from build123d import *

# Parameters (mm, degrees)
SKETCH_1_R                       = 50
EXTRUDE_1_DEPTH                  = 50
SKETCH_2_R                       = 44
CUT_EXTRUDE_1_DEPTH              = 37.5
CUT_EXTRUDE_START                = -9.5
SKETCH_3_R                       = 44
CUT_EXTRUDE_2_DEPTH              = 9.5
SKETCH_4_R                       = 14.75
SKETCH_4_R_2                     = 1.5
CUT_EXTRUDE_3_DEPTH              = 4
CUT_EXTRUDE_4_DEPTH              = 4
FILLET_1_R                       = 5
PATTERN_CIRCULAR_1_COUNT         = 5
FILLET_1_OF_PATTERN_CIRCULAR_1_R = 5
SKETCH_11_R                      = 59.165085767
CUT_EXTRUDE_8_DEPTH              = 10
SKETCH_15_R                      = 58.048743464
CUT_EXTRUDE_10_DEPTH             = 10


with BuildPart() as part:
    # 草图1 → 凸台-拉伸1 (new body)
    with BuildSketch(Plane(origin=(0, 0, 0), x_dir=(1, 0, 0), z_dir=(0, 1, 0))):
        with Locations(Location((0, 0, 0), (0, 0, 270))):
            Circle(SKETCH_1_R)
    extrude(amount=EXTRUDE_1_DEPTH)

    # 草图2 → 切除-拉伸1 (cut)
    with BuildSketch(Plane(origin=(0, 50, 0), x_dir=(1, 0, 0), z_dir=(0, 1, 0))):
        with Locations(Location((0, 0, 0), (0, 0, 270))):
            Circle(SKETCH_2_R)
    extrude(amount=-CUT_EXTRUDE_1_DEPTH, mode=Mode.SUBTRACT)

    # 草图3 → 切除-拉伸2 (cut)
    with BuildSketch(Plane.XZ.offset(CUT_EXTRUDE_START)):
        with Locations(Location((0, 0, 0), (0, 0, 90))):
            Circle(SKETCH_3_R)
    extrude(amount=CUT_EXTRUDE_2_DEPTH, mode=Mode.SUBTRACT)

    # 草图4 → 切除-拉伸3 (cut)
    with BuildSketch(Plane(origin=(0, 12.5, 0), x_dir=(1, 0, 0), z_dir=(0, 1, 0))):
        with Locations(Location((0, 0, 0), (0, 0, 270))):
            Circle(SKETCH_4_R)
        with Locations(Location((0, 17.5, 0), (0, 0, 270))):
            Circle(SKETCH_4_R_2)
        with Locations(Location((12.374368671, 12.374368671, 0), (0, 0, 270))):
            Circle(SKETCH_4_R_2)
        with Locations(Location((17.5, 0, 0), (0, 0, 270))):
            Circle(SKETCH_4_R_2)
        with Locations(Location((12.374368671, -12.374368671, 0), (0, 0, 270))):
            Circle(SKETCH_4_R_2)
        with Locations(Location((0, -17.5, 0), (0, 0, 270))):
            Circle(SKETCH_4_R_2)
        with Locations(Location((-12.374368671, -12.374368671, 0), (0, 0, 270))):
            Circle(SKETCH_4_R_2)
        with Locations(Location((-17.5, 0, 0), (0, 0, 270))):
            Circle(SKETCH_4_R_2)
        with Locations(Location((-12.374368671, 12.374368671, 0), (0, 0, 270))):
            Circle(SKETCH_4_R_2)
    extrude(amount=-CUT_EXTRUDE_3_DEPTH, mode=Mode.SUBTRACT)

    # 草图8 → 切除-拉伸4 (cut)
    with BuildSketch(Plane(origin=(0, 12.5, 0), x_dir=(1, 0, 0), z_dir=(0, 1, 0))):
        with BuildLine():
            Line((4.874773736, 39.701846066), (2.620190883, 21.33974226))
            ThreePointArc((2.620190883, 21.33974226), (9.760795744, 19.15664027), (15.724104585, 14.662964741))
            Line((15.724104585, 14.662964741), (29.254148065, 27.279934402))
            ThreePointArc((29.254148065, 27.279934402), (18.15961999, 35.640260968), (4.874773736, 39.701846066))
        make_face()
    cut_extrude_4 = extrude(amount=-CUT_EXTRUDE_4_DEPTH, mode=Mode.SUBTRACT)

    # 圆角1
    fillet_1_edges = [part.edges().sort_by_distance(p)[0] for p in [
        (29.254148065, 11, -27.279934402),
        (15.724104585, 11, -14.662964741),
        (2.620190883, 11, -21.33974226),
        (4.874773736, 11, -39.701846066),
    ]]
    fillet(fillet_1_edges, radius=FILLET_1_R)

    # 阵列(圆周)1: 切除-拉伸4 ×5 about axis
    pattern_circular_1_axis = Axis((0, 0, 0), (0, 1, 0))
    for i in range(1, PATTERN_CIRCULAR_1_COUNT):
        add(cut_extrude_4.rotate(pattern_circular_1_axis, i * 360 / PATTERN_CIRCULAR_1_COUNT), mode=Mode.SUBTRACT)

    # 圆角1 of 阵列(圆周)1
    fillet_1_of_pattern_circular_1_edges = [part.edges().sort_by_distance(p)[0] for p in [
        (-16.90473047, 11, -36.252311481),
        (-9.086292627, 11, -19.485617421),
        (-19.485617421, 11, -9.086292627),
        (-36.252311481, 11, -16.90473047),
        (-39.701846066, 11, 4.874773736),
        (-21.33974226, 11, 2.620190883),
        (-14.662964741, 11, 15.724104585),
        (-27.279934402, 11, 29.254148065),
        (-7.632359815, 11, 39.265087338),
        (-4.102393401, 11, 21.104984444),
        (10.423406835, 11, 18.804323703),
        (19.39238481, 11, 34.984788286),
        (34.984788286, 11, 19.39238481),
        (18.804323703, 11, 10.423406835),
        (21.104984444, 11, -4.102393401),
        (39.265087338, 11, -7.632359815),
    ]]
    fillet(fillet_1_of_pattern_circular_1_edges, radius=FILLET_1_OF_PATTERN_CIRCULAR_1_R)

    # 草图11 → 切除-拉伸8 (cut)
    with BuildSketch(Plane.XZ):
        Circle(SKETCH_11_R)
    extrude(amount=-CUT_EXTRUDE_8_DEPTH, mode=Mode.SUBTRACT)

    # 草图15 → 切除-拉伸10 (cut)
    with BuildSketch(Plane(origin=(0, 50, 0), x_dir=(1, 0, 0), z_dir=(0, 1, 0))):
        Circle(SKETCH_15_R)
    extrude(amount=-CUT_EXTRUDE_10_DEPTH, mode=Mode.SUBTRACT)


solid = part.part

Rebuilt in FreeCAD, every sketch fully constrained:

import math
import FreeCAD as App
import Part
import Sketcher
from FreeCAD import Vector
Q = App.Units.Quantity


def edges_at(feature, points):
    """Names of the edges that pass closest to the given points."""
    edges = feature.Shape.Edges
    near = lambda p: min(range(len(edges)), key=lambda i: edges[i].distToShape(Part.Vertex(*p))[0])
    return sorted({f"Edge{near(p) + 1}" for p in points})

doc = App.newDocument("Part")
body = doc.addObject("PartDesign::Body", "Body")

# Sketch on XZ plane
sketch1 = body.newObject("Sketcher::SketchObject", "Sketch")
sketch1.AttachmentSupport = (doc.getObject("XZ_Plane"), [""])
sketch1.MapMode = "FlatFace"
sketch1.addGeometry(Part.Circle(Vector(0, 0, 0), Vector(0, 0, 1), 50), False)
sketch1.addConstraint(Sketcher.Constraint("Coincident", 0, 3, -1, 1))
sketch1.addConstraint(Sketcher.Constraint("Diameter", 0, Q("100 mm")))
pad1 = body.newObject("PartDesign::Pad", "Pad")
pad1.Profile = sketch1
pad1.Length = 50
pad1.Reversed = True

# Sketch on XZ plane
sketch2 = body.newObject("Sketcher::SketchObject", "Sketch001")
sketch2.AttachmentSupport = (doc.getObject("XZ_Plane"), [""])
sketch2.MapMode = "FlatFace"
sketch2.AttachmentOffset = App.Placement(Vector(0, 0, -50), App.Rotation())
sketch2.addGeometry(Part.Circle(Vector(0, 0, 0), Vector(0, 0, 1), 44), False)
sketch2.addConstraint(Sketcher.Constraint("Coincident", 0, 3, -1, 1))
sketch2.addConstraint(Sketcher.Constraint("Diameter", 0, Q("88 mm")))
pocket1 = body.newObject("PartDesign::Pocket", "Pocket")
pocket1.Profile = sketch2
pocket1.Length = 37.5
pocket1.Reversed = True

# Sketch on XZ plane
sketch3 = body.newObject("Sketcher::SketchObject", "Sketch002")
sketch3.AttachmentSupport = (doc.getObject("XZ_Plane"), [""])
sketch3.MapMode = "FlatFace"
sketch3.AttachmentOffset = App.Placement(Vector(0, 0, -9.5), App.Rotation())
sketch3.addGeometry(Part.Circle(Vector(0, 0, 0), Vector(0, 0, 1), 44), False)
sketch3.addConstraint(Sketcher.Constraint("Coincident", 0, 3, -1, 1))
sketch3.addConstraint(Sketcher.Constraint("Diameter", 0, Q("88 mm")))
pocket2 = body.newObject("PartDesign::Pocket", "Pocket001")
pocket2.Profile = sketch3
pocket2.Length = 9.5
pocket2.Reversed = True

# Sketch on XZ plane
sketch4 = body.newObject("Sketcher::SketchObject", "Sketch003")
sketch4.AttachmentSupport = (doc.getObject("XZ_Plane"), [""])
sketch4.MapMode = "FlatFace"
sketch4.AttachmentOffset = App.Placement(Vector(0, 0, -12.5), App.Rotation())
sketch4.addGeometry(Part.Circle(Vector(0, 0, 0), Vector(0, 0, 1), 14.8), False)
sketch4.addGeometry(Part.Circle(Vector(0, -17.5, 0), Vector(0, 0, 1), 1.5), False)
sketch4.addGeometry(Part.Circle(Vector(12.4, -12.4, 0), Vector(0, 0, 1), 1.5), False)
sketch4.addGeometry(Part.Circle(Vector(17.5, 0, 0), Vector(0, 0, 1), 1.5), False)
sketch4.addGeometry(Part.Circle(Vector(12.4, 12.4, 0), Vector(0, 0, 1), 1.5), False)
sketch4.addGeometry(Part.Circle(Vector(0, 17.5, 0), Vector(0, 0, 1), 1.5), False)
sketch4.addGeometry(Part.Circle(Vector(-12.4, 12.4, 0), Vector(0, 0, 1), 1.5), False)
sketch4.addGeometry(Part.Circle(Vector(-17.5, 0, 0), Vector(0, 0, 1), 1.5), False)
sketch4.addGeometry(Part.Circle(Vector(-12.4, -12.4, 0), Vector(0, 0, 1), 1.5), False)
sketch4.addConstraint(Sketcher.Constraint("Coincident", 0, 3, -1, 1))
sketch4.addConstraint(Sketcher.Constraint("Equal", 1, 2))
sketch4.addConstraint(Sketcher.Constraint("Equal", 2, 3))
sketch4.addConstraint(Sketcher.Constraint("Equal", 3, 4))
sketch4.addConstraint(Sketcher.Constraint("Equal", 4, 5))
sketch4.addConstraint(Sketcher.Constraint("Equal", 5, 6))
sketch4.addConstraint(Sketcher.Constraint("Equal", 6, 7))
sketch4.addConstraint(Sketcher.Constraint("Equal", 7, 8))
sketch4.addConstraint(Sketcher.Constraint("Symmetric", 1, 3, 5, 3, -1, 1))
sketch4.addConstraint(Sketcher.Constraint("Symmetric", 2, 3, 6, 3, -1, 1))
sketch4.addConstraint(Sketcher.Constraint("Symmetric", 3, 3, 7, 3, -1, 1))
sketch4.addConstraint(Sketcher.Constraint("Symmetric", 4, 3, 8, 3, -1, 1))
sketch4.addConstraint(Sketcher.Constraint("Symmetric", 4, 3, 6, 3, -2))
sketch4.addConstraint(Sketcher.Constraint("PointOnObject", 1, 3, -2))
sketch4.addConstraint(Sketcher.Constraint("PointOnObject", 3, 3, -1))
sketch4.addConstraint(Sketcher.Constraint("Diameter", 1, Q("3 mm")))
sketch4.addConstraint(Sketcher.Constraint("Diameter", 0, Q("29.5 mm")))
sketch4.addConstraint(Sketcher.Constraint("DistanceY", 1, 3, 5, 3, Q("35 mm")))
sketch4.addConstraint(Sketcher.Constraint("DistanceX", -1, 1, 3, 3, Q("17.5 mm")))
sketch4.addConstraint(Sketcher.Constraint("DistanceX", -1, 1, 2, 3, Q("12.374369 mm")))
sketch4.addConstraint(Sketcher.Constraint("DistanceY", 2, 3, -1, 1, Q("12.374369 mm")))
pocket3 = body.newObject("PartDesign::Pocket", "Pocket002")
pocket3.Profile = sketch4
pocket3.Length = 4
pocket3.Reversed = True

# Sketch on XZ plane
sketch5 = body.newObject("Sketcher::SketchObject", "Sketch004")
sketch5.AttachmentSupport = (doc.getObject("XZ_Plane"), [""])
sketch5.MapMode = "FlatFace"
sketch5.AttachmentOffset = App.Placement(Vector(0, 0, -12.5), App.Rotation())
sketch5.addGeometry(Part.LineSegment(Vector(5, -40, 0), Vector(3, -21, 0)), False)
sketch5.addGeometry(Part.ArcOfCircle(Part.Circle(Vector(0, 0, 0), Vector(0, 0, 1), 22), math.radians(-83), math.radians(-43)), False)
sketch5.addGeometry(Part.LineSegment(Vector(16, -15, 0), Vector(29, -27, 0)), False)
sketch5.addGeometry(Part.ArcOfCircle(Part.Circle(Vector(0, 0, 0), Vector(0, 0, 1), 40), math.radians(-83), math.radians(-43)), False)
sketch5.addConstraint(Sketcher.Constraint("Coincident", 0, 2, 1, 1))
sketch5.addConstraint(Sketcher.Constraint("Coincident", 1, 2, 2, 1))
sketch5.addConstraint(Sketcher.Constraint("Coincident", 2, 2, 3, 2))
sketch5.addConstraint(Sketcher.Constraint("Coincident", 3, 1, 0, 1))
sketch5.addConstraint(Sketcher.Constraint("Coincident", 1, 3, -1, 1))
sketch5.addConstraint(Sketcher.Constraint("Coincident", 3, 3, -1, 1))
sketch5.addConstraint(Sketcher.Constraint("Radius", 3, Q("40 mm")))
sketch5.addConstraint(Sketcher.Constraint("Radius", 1, Q("21.5 mm")))
sketch5.addConstraint(Sketcher.Constraint("Angle", 0, Q("97 deg")))
sketch5.addConstraint(Sketcher.Constraint("Angle", 2, Q("-43 deg")))
sketch5.addConstraint(Sketcher.Constraint("DistanceX", -1, 1, 0, 2, Q("2.620191 mm")))
sketch5.addConstraint(Sketcher.Constraint("DistanceX", -1, 1, 2, 2, Q("29.254148 mm")))
pocket4 = body.newObject("PartDesign::Pocket", "Pocket003")
pocket4.Profile = sketch5
pocket4.Length = 4
pocket4.Reversed = True
doc.recompute()

fillet = body.newObject("PartDesign::Fillet", "Fillet")
fillet.Base = (pocket4, edges_at(pocket4, [
    (29.254, 11, -27.28),
    (15.724, 11, -14.663),
    (2.62, 11, -21.34),
    (4.875, 11, -39.702),
]))
fillet.Radius = 5
doc.recompute()

polarpattern = body.newObject("PartDesign::PolarPattern", "PolarPattern")
polarpattern.Originals = [pocket4]
polarpattern.Axis = (doc.getObject("Y_Axis"), [""])
polarpattern.Angle = 360
polarpattern.Occurrences = 5
body.Tip = polarpattern
doc.recompute()

fillet2 = body.newObject("PartDesign::Fillet", "Fillet001")
fillet2.Base = (polarpattern, edges_at(polarpattern, [
    (-16.905, 11, -36.252),
    (-9.086, 11, -19.486),
    (-19.486, 11, -9.086),
    (-36.252, 11, -16.905),
    (-39.702, 11, 4.875),
    (-21.34, 11, 2.62),
    (-14.663, 11, 15.724),
    (-27.28, 11, 29.254),
    (-7.632, 11, 39.265),
    (-4.102, 11, 21.105),
    (10.423, 11, 18.804),
    (19.392, 11, 34.985),
    (34.985, 11, 19.392),
    (18.804, 11, 10.423),
    (21.105, 11, -4.102),
    (39.265, 11, -7.632),
]))
fillet2.Radius = 5

# Sketch on XZ plane
sketch6 = body.newObject("Sketcher::SketchObject", "Sketch005")
sketch6.AttachmentSupport = (doc.getObject("XZ_Plane"), [""])
sketch6.MapMode = "FlatFace"
sketch6.addGeometry(Part.Circle(Vector(0, 0, 0), Vector(0, 0, 1), 59), False)
sketch6.addConstraint(Sketcher.Constraint("Coincident", 0, 3, -1, 1))
sketch6.addConstraint(Sketcher.Constraint("Diameter", 0, Q("118.330172 mm")))
pocket5 = body.newObject("PartDesign::Pocket", "Pocket004")
pocket5.Profile = sketch6
pocket5.Length = 10

# Sketch on XZ plane
sketch7 = body.newObject("Sketcher::SketchObject", "Sketch006")
sketch7.AttachmentSupport = (doc.getObject("XZ_Plane"), [""])
sketch7.MapMode = "FlatFace"
sketch7.AttachmentOffset = App.Placement(Vector(0, 0, -50), App.Rotation())
sketch7.addGeometry(Part.Circle(Vector(0, 0, 0), Vector(0, 0, 1), 58), False)
sketch7.addConstraint(Sketcher.Constraint("Coincident", 0, 3, -1, 1))
sketch7.addConstraint(Sketcher.Constraint("Diameter", 0, Q("116.097487 mm")))
pocket6 = body.newObject("PartDesign::Pocket", "Pocket005")
pocket6.Profile = sketch7
pocket6.Length = 10
pocket6.Reversed = True

doc.recompute()
